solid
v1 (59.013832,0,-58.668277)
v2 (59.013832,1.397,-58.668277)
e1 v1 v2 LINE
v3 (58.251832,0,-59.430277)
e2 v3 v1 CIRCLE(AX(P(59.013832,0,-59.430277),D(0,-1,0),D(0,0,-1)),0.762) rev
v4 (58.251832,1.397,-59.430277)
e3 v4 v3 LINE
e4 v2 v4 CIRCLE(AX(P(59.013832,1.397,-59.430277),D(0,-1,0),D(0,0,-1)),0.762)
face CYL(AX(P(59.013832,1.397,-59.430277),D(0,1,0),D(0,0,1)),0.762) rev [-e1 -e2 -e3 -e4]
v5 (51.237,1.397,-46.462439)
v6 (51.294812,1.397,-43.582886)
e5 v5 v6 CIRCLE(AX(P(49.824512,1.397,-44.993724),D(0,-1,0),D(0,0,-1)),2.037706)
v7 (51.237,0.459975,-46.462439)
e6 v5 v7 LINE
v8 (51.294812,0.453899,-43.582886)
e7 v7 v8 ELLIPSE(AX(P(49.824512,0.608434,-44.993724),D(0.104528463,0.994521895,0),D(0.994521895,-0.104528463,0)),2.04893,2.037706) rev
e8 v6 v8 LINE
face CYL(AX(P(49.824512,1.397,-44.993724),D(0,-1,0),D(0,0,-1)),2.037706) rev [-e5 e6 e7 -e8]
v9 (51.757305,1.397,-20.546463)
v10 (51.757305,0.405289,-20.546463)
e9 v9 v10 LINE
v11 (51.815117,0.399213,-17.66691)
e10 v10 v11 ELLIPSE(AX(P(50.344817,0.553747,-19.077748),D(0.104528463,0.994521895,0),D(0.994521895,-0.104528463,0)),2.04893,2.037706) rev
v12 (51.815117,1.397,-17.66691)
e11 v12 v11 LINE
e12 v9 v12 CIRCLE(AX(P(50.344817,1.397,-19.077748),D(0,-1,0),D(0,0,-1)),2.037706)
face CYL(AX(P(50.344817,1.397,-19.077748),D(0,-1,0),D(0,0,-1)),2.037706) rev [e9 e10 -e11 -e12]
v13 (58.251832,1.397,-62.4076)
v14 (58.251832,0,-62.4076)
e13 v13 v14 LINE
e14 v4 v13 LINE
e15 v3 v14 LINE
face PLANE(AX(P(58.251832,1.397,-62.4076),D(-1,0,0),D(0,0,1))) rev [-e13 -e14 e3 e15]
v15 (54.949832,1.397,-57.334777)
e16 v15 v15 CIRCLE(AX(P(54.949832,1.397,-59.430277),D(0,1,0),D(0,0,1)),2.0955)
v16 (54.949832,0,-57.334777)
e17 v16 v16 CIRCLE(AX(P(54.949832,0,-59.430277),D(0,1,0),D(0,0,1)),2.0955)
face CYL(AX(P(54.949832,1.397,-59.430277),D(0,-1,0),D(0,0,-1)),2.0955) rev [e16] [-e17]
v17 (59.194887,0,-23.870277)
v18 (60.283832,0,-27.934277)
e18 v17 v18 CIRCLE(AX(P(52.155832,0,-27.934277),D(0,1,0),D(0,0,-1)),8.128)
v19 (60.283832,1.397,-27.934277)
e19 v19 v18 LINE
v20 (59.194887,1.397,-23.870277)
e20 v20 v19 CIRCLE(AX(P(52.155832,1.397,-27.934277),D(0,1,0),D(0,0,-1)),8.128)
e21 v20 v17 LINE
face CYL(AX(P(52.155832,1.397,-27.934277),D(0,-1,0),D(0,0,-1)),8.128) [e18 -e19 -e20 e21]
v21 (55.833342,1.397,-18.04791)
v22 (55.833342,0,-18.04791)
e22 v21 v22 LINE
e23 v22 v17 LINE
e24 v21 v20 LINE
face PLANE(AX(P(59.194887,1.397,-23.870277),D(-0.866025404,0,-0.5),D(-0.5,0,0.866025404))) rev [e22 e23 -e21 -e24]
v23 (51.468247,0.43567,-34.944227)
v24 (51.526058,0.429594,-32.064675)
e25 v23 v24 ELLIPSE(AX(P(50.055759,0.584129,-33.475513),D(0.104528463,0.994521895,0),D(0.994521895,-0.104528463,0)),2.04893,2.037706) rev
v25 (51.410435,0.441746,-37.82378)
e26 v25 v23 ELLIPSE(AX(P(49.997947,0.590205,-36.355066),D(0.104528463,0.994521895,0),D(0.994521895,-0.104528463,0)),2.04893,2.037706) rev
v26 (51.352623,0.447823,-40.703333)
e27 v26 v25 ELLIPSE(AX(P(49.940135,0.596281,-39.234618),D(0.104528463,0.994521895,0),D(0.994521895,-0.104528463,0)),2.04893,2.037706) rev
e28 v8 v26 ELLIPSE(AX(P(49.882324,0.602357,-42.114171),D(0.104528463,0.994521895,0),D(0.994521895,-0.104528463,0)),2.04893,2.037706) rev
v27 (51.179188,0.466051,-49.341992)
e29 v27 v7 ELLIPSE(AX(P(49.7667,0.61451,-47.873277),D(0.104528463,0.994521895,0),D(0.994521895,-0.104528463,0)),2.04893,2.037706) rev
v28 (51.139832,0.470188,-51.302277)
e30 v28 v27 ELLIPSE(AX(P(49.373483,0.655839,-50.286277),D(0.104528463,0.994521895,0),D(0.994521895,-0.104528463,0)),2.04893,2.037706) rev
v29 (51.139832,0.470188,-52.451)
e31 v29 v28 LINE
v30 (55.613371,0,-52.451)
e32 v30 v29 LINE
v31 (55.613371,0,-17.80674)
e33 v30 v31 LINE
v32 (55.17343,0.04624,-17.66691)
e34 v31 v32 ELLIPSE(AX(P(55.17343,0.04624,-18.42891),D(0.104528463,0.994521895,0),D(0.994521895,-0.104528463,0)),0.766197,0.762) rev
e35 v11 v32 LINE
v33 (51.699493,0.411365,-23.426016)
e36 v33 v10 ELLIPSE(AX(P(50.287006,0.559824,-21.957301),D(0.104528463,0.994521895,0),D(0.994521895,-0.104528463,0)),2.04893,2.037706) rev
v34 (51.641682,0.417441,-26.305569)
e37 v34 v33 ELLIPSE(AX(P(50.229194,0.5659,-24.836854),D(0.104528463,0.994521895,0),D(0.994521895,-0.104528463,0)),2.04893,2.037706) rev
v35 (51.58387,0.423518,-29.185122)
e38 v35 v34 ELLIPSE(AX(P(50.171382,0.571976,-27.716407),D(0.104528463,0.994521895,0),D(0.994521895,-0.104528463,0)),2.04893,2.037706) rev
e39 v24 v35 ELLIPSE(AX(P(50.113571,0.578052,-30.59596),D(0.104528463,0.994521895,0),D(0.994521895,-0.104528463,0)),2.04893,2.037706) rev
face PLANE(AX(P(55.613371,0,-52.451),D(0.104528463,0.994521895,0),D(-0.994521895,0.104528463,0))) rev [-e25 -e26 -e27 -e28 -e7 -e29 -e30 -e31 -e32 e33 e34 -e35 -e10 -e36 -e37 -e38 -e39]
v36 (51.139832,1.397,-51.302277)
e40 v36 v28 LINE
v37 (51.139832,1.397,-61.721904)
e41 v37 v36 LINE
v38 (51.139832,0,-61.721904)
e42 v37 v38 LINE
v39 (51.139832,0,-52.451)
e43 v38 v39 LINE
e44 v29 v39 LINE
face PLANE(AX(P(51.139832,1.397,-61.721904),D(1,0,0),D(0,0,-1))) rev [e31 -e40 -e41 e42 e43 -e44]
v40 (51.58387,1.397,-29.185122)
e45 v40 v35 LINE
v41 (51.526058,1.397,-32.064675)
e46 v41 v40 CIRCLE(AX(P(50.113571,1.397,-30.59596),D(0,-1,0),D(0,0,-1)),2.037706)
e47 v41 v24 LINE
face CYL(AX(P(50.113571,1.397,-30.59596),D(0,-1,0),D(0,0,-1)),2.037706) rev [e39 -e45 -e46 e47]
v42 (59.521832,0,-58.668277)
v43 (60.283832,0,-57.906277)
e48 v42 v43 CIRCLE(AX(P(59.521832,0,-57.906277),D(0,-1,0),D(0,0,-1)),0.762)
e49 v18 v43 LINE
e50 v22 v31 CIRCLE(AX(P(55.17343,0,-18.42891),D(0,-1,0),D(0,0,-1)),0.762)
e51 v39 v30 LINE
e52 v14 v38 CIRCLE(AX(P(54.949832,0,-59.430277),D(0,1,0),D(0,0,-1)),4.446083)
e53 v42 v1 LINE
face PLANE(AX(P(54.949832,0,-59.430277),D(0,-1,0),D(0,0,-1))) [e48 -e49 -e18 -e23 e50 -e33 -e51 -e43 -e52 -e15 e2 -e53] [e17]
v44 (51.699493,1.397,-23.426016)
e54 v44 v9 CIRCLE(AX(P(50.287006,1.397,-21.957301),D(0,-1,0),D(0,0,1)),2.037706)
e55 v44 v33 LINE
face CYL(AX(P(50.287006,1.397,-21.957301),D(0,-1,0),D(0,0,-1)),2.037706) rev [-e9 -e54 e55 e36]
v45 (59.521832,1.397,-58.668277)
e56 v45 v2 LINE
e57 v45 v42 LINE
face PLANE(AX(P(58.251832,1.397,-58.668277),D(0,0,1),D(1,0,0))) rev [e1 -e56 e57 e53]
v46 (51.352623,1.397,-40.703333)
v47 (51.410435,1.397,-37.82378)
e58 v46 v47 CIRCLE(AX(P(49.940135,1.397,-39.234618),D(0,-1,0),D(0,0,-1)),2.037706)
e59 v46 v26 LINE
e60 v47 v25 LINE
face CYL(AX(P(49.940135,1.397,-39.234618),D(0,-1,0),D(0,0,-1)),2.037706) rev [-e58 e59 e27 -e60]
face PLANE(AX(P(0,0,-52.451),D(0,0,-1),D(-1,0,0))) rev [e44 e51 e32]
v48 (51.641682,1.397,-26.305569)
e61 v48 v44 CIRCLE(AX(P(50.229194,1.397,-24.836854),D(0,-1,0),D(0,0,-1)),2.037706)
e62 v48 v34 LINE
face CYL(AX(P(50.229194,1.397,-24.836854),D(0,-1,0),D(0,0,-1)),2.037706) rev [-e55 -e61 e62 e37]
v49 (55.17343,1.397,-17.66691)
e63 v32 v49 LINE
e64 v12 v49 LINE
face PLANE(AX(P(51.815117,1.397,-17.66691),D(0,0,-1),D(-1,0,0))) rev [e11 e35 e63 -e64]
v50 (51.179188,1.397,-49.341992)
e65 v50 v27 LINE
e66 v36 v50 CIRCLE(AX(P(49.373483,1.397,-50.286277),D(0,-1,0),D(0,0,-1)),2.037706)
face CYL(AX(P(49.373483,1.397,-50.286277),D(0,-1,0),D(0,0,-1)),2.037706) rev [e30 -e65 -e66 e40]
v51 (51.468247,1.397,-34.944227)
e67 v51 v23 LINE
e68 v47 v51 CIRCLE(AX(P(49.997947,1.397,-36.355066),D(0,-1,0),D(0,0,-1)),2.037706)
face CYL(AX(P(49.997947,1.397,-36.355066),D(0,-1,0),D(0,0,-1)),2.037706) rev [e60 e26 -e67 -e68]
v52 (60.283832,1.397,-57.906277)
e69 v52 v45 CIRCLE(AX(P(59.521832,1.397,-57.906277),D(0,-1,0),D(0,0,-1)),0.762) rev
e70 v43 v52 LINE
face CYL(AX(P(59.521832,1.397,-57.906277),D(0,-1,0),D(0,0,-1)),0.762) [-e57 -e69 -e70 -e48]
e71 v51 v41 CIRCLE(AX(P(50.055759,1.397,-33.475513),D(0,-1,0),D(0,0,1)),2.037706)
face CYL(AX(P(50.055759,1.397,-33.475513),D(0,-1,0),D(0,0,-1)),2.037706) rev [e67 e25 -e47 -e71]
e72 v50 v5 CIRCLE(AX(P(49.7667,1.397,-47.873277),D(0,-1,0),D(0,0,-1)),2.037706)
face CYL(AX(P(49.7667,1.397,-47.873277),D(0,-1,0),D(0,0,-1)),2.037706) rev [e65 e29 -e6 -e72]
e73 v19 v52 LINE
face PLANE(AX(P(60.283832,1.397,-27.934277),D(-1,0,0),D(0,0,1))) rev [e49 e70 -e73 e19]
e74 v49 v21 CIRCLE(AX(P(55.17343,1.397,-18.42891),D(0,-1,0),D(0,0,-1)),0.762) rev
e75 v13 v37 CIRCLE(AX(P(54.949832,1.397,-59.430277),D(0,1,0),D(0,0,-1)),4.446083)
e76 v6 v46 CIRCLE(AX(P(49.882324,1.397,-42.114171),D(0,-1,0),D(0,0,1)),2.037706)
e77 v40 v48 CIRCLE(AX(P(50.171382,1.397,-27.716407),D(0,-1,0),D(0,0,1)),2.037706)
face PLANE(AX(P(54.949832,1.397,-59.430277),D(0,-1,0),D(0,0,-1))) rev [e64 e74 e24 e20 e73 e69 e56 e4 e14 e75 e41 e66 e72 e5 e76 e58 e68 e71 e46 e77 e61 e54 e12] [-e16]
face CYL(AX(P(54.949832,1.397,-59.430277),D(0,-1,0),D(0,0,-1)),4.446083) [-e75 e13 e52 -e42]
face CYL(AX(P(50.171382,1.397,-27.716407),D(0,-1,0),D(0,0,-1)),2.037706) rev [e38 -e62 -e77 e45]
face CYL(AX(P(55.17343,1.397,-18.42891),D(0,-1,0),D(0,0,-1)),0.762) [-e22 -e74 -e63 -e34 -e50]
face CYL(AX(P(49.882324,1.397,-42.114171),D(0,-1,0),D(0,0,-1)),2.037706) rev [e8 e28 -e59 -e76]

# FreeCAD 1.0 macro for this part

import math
import FreeCAD as App
import Part
import Sketcher
Q = App.Units.Quantity


def edges_at(feature, points):
    """Names of the edges that pass closest to the given points."""
    edges = feature.Shape.Edges
    near = lambda p: min(range(len(edges)), key=lambda i: edges[i].distToShape(Part.Vertex(*p))[0])
    return sorted({f"Edge{near(p) + 1}" for p in points})


def add_polygon(sketch, points):
    """Adds a closed chain of lines whose ends are joined by coincident constraints."""
    first, n = sketch.GeometryCount, len(points)
    for a, b in zip(points, points[1:] + points[:1]):
        sketch.addGeometry(Part.LineSegment(App.Vector(*a, 0), App.Vector(*b, 0)), False)
    for i in range(n):
        sketch.addConstraint(Sketcher.Constraint("Coincident", first + i, 2, first + (i + 1) % n, 1))

doc = App.newDocument("Part")
body = doc.addObject("PartDesign::Body", "Body")

# Sketch on XZ plane
sketch1 = doc.addObject("Sketcher::SketchObject", "Sketch")
body.addObject(sketch1)
sketch1.AttachmentSupport = (doc.XZ_Plane, [""])
sketch1.MapMode = "FlatFace"
sketch1.addGeometry([
    Part.LineSegment(App.Vector(58.251832, -58.668277, 0), App.Vector(58.251832, -62.4076, 0)),  # 0
    Part.ArcOfCircle(Part.Circle(App.Vector(54.949832, -59.430277, 0), App.Vector(0, 0, 1), 4.446083), math.radians(-148.97406), math.radians(-42.040115)),  # 1
    Part.LineSegment(App.Vector(51.139832, -61.721904, 0), App.Vector(51.139832, -51.302277, 0)),  # 2
    Part.ArcOfCircle(Part.Circle(App.Vector(49.373483, -50.286277, 0), App.Vector(0, 0, 1), 2.037706), math.radians(-29.907417), math.radians(27.607116)),  # 3
    Part.ArcOfCircle(Part.Circle(App.Vector(49.7667, -47.873277, 0), App.Vector(0, 0, 1), 2.037706), math.radians(-46.117992), math.radians(43.81769)),  # 4
    Part.ArcOfCircle(Part.Circle(App.Vector(49.824512, -44.993724, 0), App.Vector(0, 0, 1), 2.037706), math.radians(-46.117992), math.radians(43.81769)),  # 5
    Part.ArcOfCircle(Part.Circle(App.Vector(49.882324, -42.114171, 0), App.Vector(0, 0, 1), 2.037706), math.radians(-46.117992), math.radians(43.81769)),  # 6
    Part.ArcOfCircle(Part.Circle(App.Vector(49.940135, -39.234618, 0), App.Vector(0, 0, 1), 2.037706), math.radians(-46.117992), math.radians(43.81769)),  # 7
    Part.ArcOfCircle(Part.Circle(App.Vector(49.997947, -36.355066, 0), App.Vector(0, 0, 1), 2.037706), math.radians(-46.117992), math.radians(43.81769)),  # 8
    Part.ArcOfCircle(Part.Circle(App.Vector(50.055759, -33.475513, 0), App.Vector(0, 0, 1), 2.037706), math.radians(-46.117992), math.radians(43.81769)),  # 9
    Part.ArcOfCircle(Part.Circle(App.Vector(50.113571, -30.59596, 0), App.Vector(0, 0, 1), 2.037706), math.radians(-46.117992), math.radians(43.81769)),  # 10
    Part.ArcOfCircle(Part.Circle(App.Vector(50.171382, -27.716407, 0), App.Vector(0, 0, 1), 2.037706), math.radians(-46.117992), math.radians(43.81769)),  # 11
    Part.ArcOfCircle(Part.Circle(App.Vector(50.229194, -24.836854, 0), App.Vector(0, 0, 1), 2.037706), math.radians(-46.117992), math.radians(43.81769)),  # 12
    Part.ArcOfCircle(Part.Circle(App.Vector(50.287006, -21.957301, 0), App.Vector(0, 0, 1), 2.037706), math.radians(-46.117992), math.radians(43.81769)),  # 13
    Part.ArcOfCircle(Part.Circle(App.Vector(50.344817, -19.077748, 0), App.Vector(0, 0, 1), 2.037706), math.radians(-46.117992), math.radians(43.81769)),  # 14
    Part.LineSegment(App.Vector(51.815117, -17.66691, 0), App.Vector(55.613371, -17.66691, 0)),  # 15
    Part.LineSegment(App.Vector(55.613371, -17.66691, 0), App.Vector(59.194887, -23.870277, 0)),  # 16
    Part.ArcOfCircle(Part.Circle(App.Vector(52.155832, -27.934277, 0), App.Vector(0, 0, 1), 8.128), math.radians(0), math.radians(30)),  # 17
    Part.LineSegment(App.Vector(60.283832, -27.934277, 0), App.Vector(60.283832, -58.668277, 0)),  # 18
    Part.LineSegment(App.Vector(60.283832, -58.668277, 0), App.Vector(58.251832, -58.668277, 0)),  # 19
    Part.Circle(App.Vector(54.949832, -59.430277, 0), App.Vector(0, 0, 1), 2.0955),  # 20
], False)
sketch1.addConstraint([
    Sketcher.Constraint("Coincident", 0, 2, 1, 2),
    Sketcher.Constraint("Coincident", 1, 1, 2, 1),
    Sketcher.Constraint("Coincident", 2, 2, 3, 1),
    Sketcher.Constraint("Coincident", 3, 2, 4, 1),
    Sketcher.Constraint("Coincident", 4, 2, 5, 1),
    Sketcher.Constraint("Coincident", 5, 2, 6, 1),
    Sketcher.Constraint("Coincident", 6, 2, 7, 1),
    Sketcher.Constraint("Coincident", 7, 2, 8, 1),
    Sketcher.Constraint("Coincident", 8, 2, 9, 1),
    Sketcher.Constraint("Coincident", 9, 2, 10, 1),
    Sketcher.Constraint("Coincident", 10, 2, 11, 1),
    Sketcher.Constraint("Coincident", 11, 2, 12, 1),
    Sketcher.Constraint("Coincident", 12, 2, 13, 1),
    Sketcher.Constraint("Coincident", 13, 2, 14, 1),
    Sketcher.Constraint("Coincident", 14, 2, 15, 1),
    Sketcher.Constraint("Coincident", 15, 2, 16, 1),
    Sketcher.Constraint("Tangent", 16, 2, 17, 2),
    Sketcher.Constraint("Tangent", 17, 1, 18, 1),
    Sketcher.Constraint("Coincident", 18, 2, 19, 1),
    Sketcher.Constraint("Coincident", 19, 2, 0, 1),
    Sketcher.Constraint("Vertical", 0),
    Sketcher.Constraint("Vertical", 2),
    Sketcher.Constraint("Horizontal", 15),
    Sketcher.Constraint("Vertical", 18),
    Sketcher.Constraint("Horizontal", 19),
    Sketcher.Constraint("Coincident", 20, 3, 1, 3),
    Sketcher.Constraint("Equal", 3, 4),
    Sketcher.Constraint("Equal", 4, 5),
    Sketcher.Constraint("Equal", 5, 6),
    Sketcher.Constraint("Equal", 6, 7),
    Sketcher.Constraint("Equal", 7, 8),
    Sketcher.Constraint("Equal", 8, 9),
    Sketcher.Constraint("Equal", 9, 10),
    Sketcher.Constraint("Equal", 10, 11),
    Sketcher.Constraint("Equal", 11, 12),
    Sketcher.Constraint("Equal", 12, 13),
    Sketcher.Constraint("Equal", 13, 14),
    Sketcher.Constraint("Radius", 17, Q("0.32 in")),
    Sketcher.Constraint("Diameter", 20, Q("0.165 in")),
    Sketcher.Constraint("Angle", 16, Q("-60 deg")),
    Sketcher.Constraint("DistanceX", 19, 2, 19, 1, Q("0.08 in")),
    Sketcher.Constraint("DistanceY", 18, 2, 18, 1, Q("1.21 in")),
    Sketcher.Constraint("DistanceY", 1, 3, 3, 3, Q("0.36 in")),
    Sketcher.Constraint("DistanceX", 20, 3, 0, 2, Q("0.13 in")),
    Sketcher.Constraint("DistanceX", 1, 1, 20, 3, Q("0.15 in")),
    Sketcher.Constraint("DistanceY", 2, 2, 3, 3, Q("0.04 in")),
    Sketcher.Constraint("DistanceY", 1, 3, 18, 2, Q("0.03 in")),
    Sketcher.Constraint("DistanceY", 3, 3, 4, 3, Q("0.095 in")),
    Sketcher.Constraint("Radius", 1, 4.446083),
    Sketcher.Constraint("Radius", 3, 2.037706),
    Sketcher.Constraint("DistanceX", -1, 1, 4, 3, 49.7667),
    Sketcher.Constraint("DistanceY", 13, 3, -1, 1, 21.957301),
    Sketcher.Constraint("DistanceY", 0, 2, -1, 1, 62.4076),
    Sketcher.Constraint("DistanceX", -1, 1, 4, 2, 51.237),
    Sketcher.Constraint("DistanceX", 5, 3, 5, 2, 1.470299),
    Sketcher.Constraint("DistanceX", 6, 3, 6, 2, 1.470299),
    Sketcher.Constraint("DistanceX", 7, 3, 7, 2, 1.470299),
    Sketcher.Constraint("DistanceX", 8, 3, 8, 2, 1.470299),
    Sketcher.Constraint("DistanceX", 9, 3, 9, 2, 1.470299),
    Sketcher.Constraint("DistanceX", 10, 3, 10, 2, 1.470299),
    Sketcher.Constraint("DistanceX", 11, 3, 11, 2, 1.470299),
    Sketcher.Constraint("DistanceX", 12, 3, 12, 2, 1.470299),
    Sketcher.Constraint("DistanceX", 13, 3, 13, 2, 1.470299),
    Sketcher.Constraint("DistanceX", 14, 3, 14, 2, 1.470299),
    Sketcher.Constraint("Distance", 16, 7.163031),
    Sketcher.Constraint("DistanceX", 15, 1, 15, 2, 3.798254),
    Sketcher.Constraint("DistanceY", 6, 3, -1, 1, 42.114171),
    Sketcher.Constraint("DistanceY", 7, 3, -1, 1, 39.234618),
    Sketcher.Constraint("DistanceX", -1, 1, 9, 3, 50.055759),
    Sketcher.Constraint("DistanceX", -1, 1, 10, 3, 50.113571),
    Sketcher.Constraint("DistanceX", -1, 1, 5, 2, 51.294812),
    Sketcher.Constraint("DistanceX", -1, 1, 11, 2, 51.641682),
    Sketcher.Constraint("DistanceX", 7, 3, 8, 3, 0.057812),
    Sketcher.Constraint("DistanceX", 11, 3, 12, 3, 0.057812),
])
pad1 = doc.addObject("PartDesign::Pad", "Pad")
body.addObject(pad1)
pad1.Profile = sketch1
pad1.Length = Q("0.055 in")
pad1.Reversed = True

# Sketch on XY plane
sketch2 = doc.addObject("Sketcher::SketchObject", "Sketch001")
body.addObject(sketch2)
sketch2.AttachmentSupport = (doc.XY_Plane, [""])
sketch2.MapMode = "FlatFace"
add_polygon(sketch2, [(55.613371, 0), (51.139832, 0.470188), (51.139832, 0)])  # lines 0-2
sketch2.addConstraint([
    Sketcher.Constraint("Vertical", 1),
    Sketcher.Constraint("Horizontal", 2),
    Sketcher.Constraint("PointOnObject", 1, 2, -1),
    Sketcher.Constraint("Angle", 0, Q("174 deg")),
    Sketcher.Constraint("DistanceX", 2, 1, 2, 2, 4.473539),
    Sketcher.Constraint("DistanceX", -1, 1, 2, 2, 55.613371),
])
pocket1 = doc.addObject("PartDesign::Pocket", "Pocket")
body.addObject(pocket1)
pocket1.Profile = sketch2
pocket1.Length = Q("2.065 in")
doc.recompute()

fillet = doc.addObject("PartDesign::Fillet", "Fillet")
body.addObject(fillet)
fillet.Base = (pocket1, edges_at(pocket1, [(58.252, 0.699, -58.668), (60.284, 0.699, -58.668), (55.613, 0.699, -17.667)]))
fillet.Radius = Q("0.03 in")

doc.recompute()
